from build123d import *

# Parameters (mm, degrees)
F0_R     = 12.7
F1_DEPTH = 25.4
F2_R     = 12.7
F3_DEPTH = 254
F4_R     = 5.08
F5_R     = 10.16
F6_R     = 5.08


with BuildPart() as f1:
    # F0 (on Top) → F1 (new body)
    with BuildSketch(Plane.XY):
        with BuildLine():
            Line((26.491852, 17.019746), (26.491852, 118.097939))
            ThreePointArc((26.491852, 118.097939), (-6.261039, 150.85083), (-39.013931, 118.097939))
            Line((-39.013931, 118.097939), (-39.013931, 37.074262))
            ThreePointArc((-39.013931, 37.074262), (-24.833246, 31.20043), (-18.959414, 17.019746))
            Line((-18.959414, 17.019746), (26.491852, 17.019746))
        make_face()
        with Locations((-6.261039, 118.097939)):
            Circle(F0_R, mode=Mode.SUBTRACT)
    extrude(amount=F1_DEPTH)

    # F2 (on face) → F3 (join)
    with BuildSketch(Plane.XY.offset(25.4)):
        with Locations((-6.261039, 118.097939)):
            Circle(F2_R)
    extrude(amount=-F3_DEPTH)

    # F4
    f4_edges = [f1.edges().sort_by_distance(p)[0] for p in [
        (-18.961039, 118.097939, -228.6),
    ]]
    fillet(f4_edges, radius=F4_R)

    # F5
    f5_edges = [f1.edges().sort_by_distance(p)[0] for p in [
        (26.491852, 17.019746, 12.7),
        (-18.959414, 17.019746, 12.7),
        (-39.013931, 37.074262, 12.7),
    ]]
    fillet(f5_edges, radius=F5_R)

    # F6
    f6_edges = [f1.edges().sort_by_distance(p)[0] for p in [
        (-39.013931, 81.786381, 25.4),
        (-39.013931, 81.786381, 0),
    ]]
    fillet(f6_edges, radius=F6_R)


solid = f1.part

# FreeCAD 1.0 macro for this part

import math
import FreeCAD as App
import Part
import Sketcher
Q = App.Units.Quantity


def edges_at(feature, points):
    """Names of the edges that pass closest to the given points."""
    edges = feature.Shape.Edges
    near = lambda p: min(range(len(edges)), key=lambda i: edges[i].distToShape(Part.Vertex(*p))[0])
    return sorted({f"Edge{near(p) + 1}" for p in points})

doc = App.newDocument("Part")
params = doc.addObject("Spreadsheet::Sheet", "Params")
for row, (alias, value) in enumerate([
    ("sketch1_diameter", "1 in"),
    ("pad1_length", "1 in"),
    ("sketch2_diameter", "1 in"),
    ("pad2_length", "10 in"),
    ("fillet_radius", "0.2 in"),
    ("fillet2_radius", "0.4 in"),
    ("fillet3_radius", "0.2 in"),
], start=1):
    params.set(f"A{row}", alias)
    params.set(f"B{row}", "=" + value)
    params.setAlias(f"B{row}", alias)

body = doc.addObject("PartDesign::Body", "Body")

# Sketch on XY plane
sketch1 = doc.addObject("Sketcher::SketchObject", "Sketch")
body.addObject(sketch1)
sketch1.AttachmentSupport = (doc.XY_Plane, [""])
sketch1.MapMode = "FlatFace"
sketch1.addGeometry([
    Part.LineSegment(App.Vector(26.491852, 17.019746, 0), App.Vector(26.491852, 118.097939, 0)),  # 0
    Part.ArcOfCircle(Part.Circle(App.Vector(-6.261039, 118.097938, 0), App.Vector(0, 0, 1), 32.752891), math.radians(0.000001), math.radians(179.999999)),  # 1
    Part.LineSegment(App.Vector(-39.013931, 118.097939, 0), App.Vector(-39.013931, 37.074262, 0)),  # 2
    Part.ArcOfCircle(Part.Circle(App.Vector(-39.013931, 17.019745, 0), App.Vector(0, 0, 1), 20.054517), math.radians(0.000003), math.radians(90)),  # 3
    Part.LineSegment(App.Vector(-18.959414, 17.019746, 0), App.Vector(26.491852, 17.019746, 0)),  # 4
    Part.Circle(App.Vector(-6.261039, 118.097939, 0), App.Vector(0, 0, 1), 12.7),  # 5
], False)
sketch1.addConstraint([
    Sketcher.Constraint("Tangent", 0, 2, 1, 1),
    Sketcher.Constraint("Tangent", 1, 2, 2, 1),
    Sketcher.Constraint("Coincident", 2, 2, 3, 2),
    Sketcher.Constraint("Coincident", 3, 1, 4, 1),
    Sketcher.Constraint("Coincident", 4, 2, 0, 1),
    Sketcher.Constraint("Vertical", 0),
    Sketcher.Constraint("Vertical", 2),
    Sketcher.Constraint("Horizontal", 4),
    Sketcher.Constraint("Coincident", 5, 3, 1, 3),
    Sketcher.Constraint("Vertical", 3, 3, 1, 2),
    Sketcher.Constraint("Diameter", 5, Q("1 in")),
    Sketcher.Constraint("Radius", 1, Q("32.752891 mm")),
    Sketcher.Constraint("Radius", 3, Q("20.054517 mm")),
    Sketcher.Constraint("DistanceY", 0, 1, 0, 2, Q("101.078193 mm")),
    Sketcher.Constraint("DistanceY", 2, 2, 2, 1, Q("81.023677 mm")),
    Sketcher.Constraint("DistanceX", 1, 3, -1, 1, Q("6.261039 mm")),
    Sketcher.Constraint("DistanceY", -1, 1, 1, 3, Q("118.097938 mm")),
])
sketch1.setExpression("Constraints[10]", "Params.sketch1_diameter")
pad1 = doc.addObject("PartDesign::Pad", "Pad")
body.addObject(pad1)
pad1.Profile = sketch1
pad1.setExpression("Length", "Params.pad1_length")

# Sketch on XY plane
sketch2 = doc.addObject("Sketcher::SketchObject", "Sketch001")
body.addObject(sketch2)
sketch2.AttachmentSupport = (doc.XY_Plane, [""])
sketch2.MapMode = "FlatFace"
sketch2.AttachmentOffset = App.Placement(App.Vector(0, 0, 1 * 25.4), App.Rotation())
sketch2.addGeometry(Part.Circle(App.Vector(-6.261039, 118.097939, 0), App.Vector(0, 0, 1), 12.7), False)
sketch2.addConstraint([
    Sketcher.Constraint("Diameter", 0, Q("1 in")),
    Sketcher.Constraint("DistanceX", 0, 3, -1, 1, Q("6.261039 mm")),
    Sketcher.Constraint("DistanceY", -1, 1, 0, 3, Q("118.097939 mm")),
])
sketch2.setExpression("Constraints[0]", "Params.sketch2_diameter")
pad2 = doc.addObject("PartDesign::Pad", "Pad001")
body.addObject(pad2)
pad2.Profile = sketch2
pad2.setExpression("Length", "Params.pad2_length")
pad2.Reversed = True
doc.recompute()

fillet = doc.addObject("PartDesign::Fillet", "Fillet")
body.addObject(fillet)
fillet.Base = (pad2, edges_at(pad2, [(-18.961, 118.098, -228.6)]))
fillet.setExpression("Radius", "Params.fillet_radius")
doc.recompute()

fillet2 = doc.addObject("PartDesign::Fillet", "Fillet001")
body.addObject(fillet2)
fillet2.Base = (fillet, edges_at(fillet, [(26.492, 17.02, 12.7), (-18.959, 17.02, 12.7), (-39.014, 37.074, 12.7)]))
fillet2.setExpression("Radius", "Params.fillet2_radius")
doc.recompute()

fillet3 = doc.addObject("PartDesign::Fillet", "Fillet002")
body.addObject(fillet3)
fillet3.Base = (fillet2, edges_at(fillet2, [(-39.014, 81.786, 25.4), (-39.014, 81.786, 0)]))
fillet3.setExpression("Radius", "Params.fillet3_radius")

doc.recompute()
